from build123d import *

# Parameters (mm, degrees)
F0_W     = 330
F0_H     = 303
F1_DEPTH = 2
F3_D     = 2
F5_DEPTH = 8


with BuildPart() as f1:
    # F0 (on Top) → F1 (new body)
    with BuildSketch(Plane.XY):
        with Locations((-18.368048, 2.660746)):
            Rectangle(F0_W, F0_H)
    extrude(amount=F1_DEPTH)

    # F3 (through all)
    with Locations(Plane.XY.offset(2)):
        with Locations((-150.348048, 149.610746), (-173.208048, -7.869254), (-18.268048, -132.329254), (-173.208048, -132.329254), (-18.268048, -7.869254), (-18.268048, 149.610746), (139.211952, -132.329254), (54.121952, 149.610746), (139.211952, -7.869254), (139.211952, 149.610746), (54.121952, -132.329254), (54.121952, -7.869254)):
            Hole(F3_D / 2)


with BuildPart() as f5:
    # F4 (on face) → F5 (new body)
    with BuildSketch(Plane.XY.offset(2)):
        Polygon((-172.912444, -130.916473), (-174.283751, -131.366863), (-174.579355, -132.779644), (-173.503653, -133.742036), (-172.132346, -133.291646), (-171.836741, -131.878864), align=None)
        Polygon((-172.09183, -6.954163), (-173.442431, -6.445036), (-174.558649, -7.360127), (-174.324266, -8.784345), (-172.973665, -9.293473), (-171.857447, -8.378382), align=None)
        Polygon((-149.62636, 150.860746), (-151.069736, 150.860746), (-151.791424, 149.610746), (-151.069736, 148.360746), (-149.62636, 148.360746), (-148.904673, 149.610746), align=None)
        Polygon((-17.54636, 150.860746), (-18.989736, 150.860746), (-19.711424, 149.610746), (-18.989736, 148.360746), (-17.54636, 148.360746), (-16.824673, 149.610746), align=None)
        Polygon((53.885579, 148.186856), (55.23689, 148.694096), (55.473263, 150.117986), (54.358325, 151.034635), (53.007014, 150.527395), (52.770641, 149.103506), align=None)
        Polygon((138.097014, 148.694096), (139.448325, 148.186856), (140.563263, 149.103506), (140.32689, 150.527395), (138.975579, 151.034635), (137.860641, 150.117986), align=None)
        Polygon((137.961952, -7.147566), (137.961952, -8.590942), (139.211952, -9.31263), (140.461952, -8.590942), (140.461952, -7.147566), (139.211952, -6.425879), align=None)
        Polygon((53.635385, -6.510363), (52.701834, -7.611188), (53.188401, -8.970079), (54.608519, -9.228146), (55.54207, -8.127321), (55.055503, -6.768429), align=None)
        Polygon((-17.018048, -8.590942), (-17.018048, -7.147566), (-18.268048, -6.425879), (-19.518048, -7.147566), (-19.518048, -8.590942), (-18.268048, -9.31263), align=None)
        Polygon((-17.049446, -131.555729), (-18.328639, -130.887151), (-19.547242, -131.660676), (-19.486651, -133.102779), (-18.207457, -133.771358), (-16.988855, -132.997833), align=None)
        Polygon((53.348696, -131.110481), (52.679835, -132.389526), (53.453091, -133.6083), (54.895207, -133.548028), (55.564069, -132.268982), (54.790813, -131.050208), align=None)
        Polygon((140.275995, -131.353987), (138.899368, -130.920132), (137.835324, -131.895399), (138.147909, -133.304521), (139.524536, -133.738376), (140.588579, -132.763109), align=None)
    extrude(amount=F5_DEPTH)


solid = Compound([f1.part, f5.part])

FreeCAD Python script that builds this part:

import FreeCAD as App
import Part
import Sketcher
Q = App.Units.Quantity


def add_polygon(sketch, points):
    """Adds a closed chain of lines whose ends are joined by coincident constraints."""
    first, n = sketch.GeometryCount, len(points)
    for a, b in zip(points, points[1:] + points[:1]):
        sketch.addGeometry(Part.LineSegment(App.Vector(*a, 0), App.Vector(*b, 0)), False)
    for i in range(n):
        sketch.addConstraint(Sketcher.Constraint("Coincident", first + i, 2, first + (i + 1) % n, 1))

doc = App.newDocument("Part")
body = doc.addObject("PartDesign::Body", "Body")

sketch1 = body.newObject("Sketcher::SketchObject", "Sketch")
sketch1.AttachmentSupport = (doc.getObject("XY_Plane"), [""])
sketch1.MapMode = "FlatFace"
add_polygon(sketch1, [(-183.368048, 154.160746), (-183.368048, -148.839254), (146.631952, -148.839254), (146.631952, 154.160746)])
sketch1.addConstraint([
    Sketcher.Constraint("Vertical", 0),
    Sketcher.Constraint("Horizontal", 1),
    Sketcher.Constraint("Vertical", 2),
    Sketcher.Constraint("Horizontal", 3),
    Sketcher.Constraint("DistanceX", 1, 1, 1, 2, 330.0),
    Sketcher.Constraint("DistanceY", 0, 2, 0, 1, 303.0),
    Sketcher.Constraint("DistanceX", 0, 2, -1, 1, 183.368048),
    Sketcher.Constraint("DistanceY", 0, 2, -1, 1, 148.839254),
])
pad1 = body.newObject("PartDesign::Pad", "Pad")
pad1.Profile = sketch1
pad1.Length = 2

sketch2 = body.newObject("Sketcher::SketchObject", "Sketch001")
sketch2.AttachmentSupport = (doc.getObject("XY_Plane"), [""])
sketch2.MapMode = "FlatFace"
sketch2.AttachmentOffset = App.Placement(App.Vector(0, 0, 2), App.Rotation())
sketch2.addGeometry([
    Part.Circle(App.Vector(-150.348048, 149.610746, 0), App.Vector(0, 0, 1), 1),
    Part.Circle(App.Vector(-173.208048, -7.869254, 0), App.Vector(0, 0, 1), 1),
    Part.Circle(App.Vector(-18.268048, -132.329254, 0), App.Vector(0, 0, 1), 1),
    Part.Circle(App.Vector(-173.208048, -132.329254, 0), App.Vector(0, 0, 1), 1),
    Part.Circle(App.Vector(-18.268048, -7.869254, 0), App.Vector(0, 0, 1), 1),
    Part.Circle(App.Vector(-18.268048, 149.610746, 0), App.Vector(0, 0, 1), 1),
    Part.Circle(App.Vector(139.211952, -132.329254, 0), App.Vector(0, 0, 1), 1),
    Part.Circle(App.Vector(54.121952, 149.610746, 0), App.Vector(0, 0, 1), 1),
    Part.Circle(App.Vector(139.211952, -7.869254, 0), App.Vector(0, 0, 1), 1),
    Part.Circle(App.Vector(139.211952, 149.610746, 0), App.Vector(0, 0, 1), 1),
    Part.Circle(App.Vector(54.121952, -132.329254, 0), App.Vector(0, 0, 1), 1),
    Part.Circle(App.Vector(54.121952, -7.869254, 0), App.Vector(0, 0, 1), 1),
], False)
sketch2.addConstraint([
    Sketcher.Constraint("Equal", 0, 1),
    Sketcher.Constraint("Equal", 1, 2),
    Sketcher.Constraint("Equal", 2, 3),
    Sketcher.Constraint("Equal", 3, 4),
    Sketcher.Constraint("Equal", 4, 5),
    Sketcher.Constraint("Equal", 5, 6),
    Sketcher.Constraint("Equal", 6, 7),
    Sketcher.Constraint("Equal", 7, 8),
    Sketcher.Constraint("Equal", 8, 9),
    Sketcher.Constraint("Equal", 9, 10),
    Sketcher.Constraint("Equal", 10, 11),
    Sketcher.Constraint("Horizontal", 2, 3, 3, 3),
    Sketcher.Constraint("Horizontal", 1, 3, 4, 3),
    Sketcher.Constraint("Horizontal", 0, 3, 5, 3),
    Sketcher.Constraint("Horizontal", 3, 3, 6, 3),
    Sketcher.Constraint("Horizontal", 5, 3, 7, 3),
    Sketcher.Constraint("Horizontal", 4, 3, 8, 3),
    Sketcher.Constraint("Horizontal", 7, 3, 9, 3),
    Sketcher.Constraint("Horizontal", 6, 3, 10, 3),
    Sketcher.Constraint("Horizontal", 8, 3, 11, 3),
    Sketcher.Constraint("Vertical", 1, 3, 3, 3),
    Sketcher.Constraint("Vertical", 2, 3, 4, 3),
    Sketcher.Constraint("Vertical", 4, 3, 5, 3),
    Sketcher.Constraint("Vertical", 6, 3, 8, 3),
    Sketcher.Constraint("Vertical", 8, 3, 9, 3),
    Sketcher.Constraint("Vertical", 7, 3, 10, 3),
    Sketcher.Constraint("Vertical", 10, 3, 11, 3),
    Sketcher.Constraint("Diameter", 0, 2.0),
    Sketcher.Constraint("DistanceX", 1, 3, 0, 3, 22.86),
    Sketcher.Constraint("DistanceY", 1, 3, 0, 3, 157.48),
    Sketcher.Constraint("DistanceX", 1, 3, 2, 3, 154.94),
    Sketcher.Constraint("DistanceY", 2, 3, 1, 3, 124.46),
    Sketcher.Constraint("DistanceX", 2, 3, 6, 3, 157.48),
    Sketcher.Constraint("DistanceX", 5, 3, 7, 3, 72.39),
    Sketcher.Constraint("DistanceX", 0, 3, -1, 1, 150.348048),
    Sketcher.Constraint("DistanceY", -1, 1, 0, 3, 149.610746),
])
doc.recompute()
hole = body.newObject("PartDesign::Hole", "Hole")
hole.Profile = sketch2
hole.ThreadType = "None"
hole.Diameter = 2
hole.DepthType = "ThroughAll"
body2 = doc.addObject("PartDesign::Body", "Body001")
body2.AllowCompound = True

sketch3 = body2.newObject("Sketcher::SketchObject", "Sketch002")
sketch3.AttachmentSupport = (doc.getObject("XY_Plane001"), [""])
sketch3.MapMode = "FlatFace"
sketch3.AttachmentOffset = App.Placement(App.Vector(0, 0, 2), App.Rotation())
add_polygon(sketch3, [(-172.912444, -130.916473), (-174.283751, -131.366863), (-174.579355, -132.779644), (-173.503653, -133.742036), (-172.132346, -133.291646), (-171.836741, -131.878864)])
add_polygon(sketch3, [(-172.09183, -6.954163), (-173.442431, -6.445036), (-174.558649, -7.360127), (-174.324266, -8.784345), (-172.973665, -9.293473), (-171.857447, -8.378382)])
add_polygon(sketch3, [(-149.62636, 150.860746), (-151.069736, 150.860746), (-151.791424, 149.610746), (-151.069736, 148.360746), (-149.62636, 148.360746), (-148.904673, 149.610746)])
add_polygon(sketch3, [(-17.54636, 150.860746), (-18.989736, 150.860746), (-19.711424, 149.610746), (-18.989736, 148.360746), (-17.54636, 148.360746), (-16.824673, 149.610746)])
add_polygon(sketch3, [(53.885579, 148.186856), (55.23689, 148.694096), (55.473263, 150.117986), (54.358325, 151.034635), (53.007014, 150.527395), (52.770641, 149.103506)])
add_polygon(sketch3, [(138.097014, 148.694096), (139.448325, 148.186856), (140.563263, 149.103506), (140.32689, 150.527395), (138.975579, 151.034635), (137.860641, 150.117986)])
add_polygon(sketch3, [(137.961952, -7.147566), (137.961952, -8.590942), (139.211952, -9.31263), (140.461952, -8.590942), (140.461952, -7.147566), (139.211952, -6.425879)])
add_polygon(sketch3, [(53.635385, -6.510363), (52.701834, -7.611188), (53.188401, -8.970079), (54.608519, -9.228146), (55.54207, -8.127321), (55.055503, -6.768429)])
add_polygon(sketch3, [(-17.018048, -8.590942), (-17.018048, -7.147566), (-18.268048, -6.425879), (-19.518048, -7.147566), (-19.518048, -8.590942), (-18.268048, -9.31263)])
add_polygon(sketch3, [(-17.049446, -131.555729), (-18.328639, -130.887151), (-19.547242, -131.660676), (-19.486651, -133.102779), (-18.207457, -133.771358), (-16.988855, -132.997833)])
add_polygon(sketch3, [(53.348696, -131.110481), (52.679835, -132.389526), (53.453091, -133.6083), (54.895207, -133.548028), (55.564069, -132.268982), (54.790813, -131.050208)])
add_polygon(sketch3, [(140.275995, -131.353987), (138.899368, -130.920132), (137.835324, -131.895399), (138.147909, -133.304521), (139.524536, -133.738376), (140.588579, -132.763109)])
sketch3.addConstraint([
    Sketcher.Constraint("Horizontal", 12),
    Sketcher.Constraint("Horizontal", 15),
    Sketcher.Constraint("Horizontal", 18),
    Sketcher.Constraint("Horizontal", 21),
    Sketcher.Constraint("Vertical", 36),
    Sketcher.Constraint("Vertical", 39),
    Sketcher.Constraint("Vertical", 48),
    Sketcher.Constraint("Vertical", 51),
    Sketcher.Constraint("Parallel", 0, 3),
    Sketcher.Constraint("Parallel", 1, 4),
    Sketcher.Constraint("Parallel", 2, 5),
    Sketcher.Constraint("Parallel", 6, 9),
    Sketcher.Constraint("Parallel", 7, 10),
    Sketcher.Constraint("Parallel", 8, 11),
    Sketcher.Constraint("Parallel", 13, 16),
    Sketcher.Constraint("Parallel", 14, 17),
    Sketcher.Constraint("Parallel", 16, 19),
    Sketcher.Constraint("Parallel", 17, 20),
    Sketcher.Constraint("Parallel", 19, 22),
    Sketcher.Constraint("Parallel", 20, 23),
    Sketcher.Constraint("Parallel", 24, 27),
    Sketcher.Constraint("Parallel", 25, 28),
    Sketcher.Constraint("Parallel", 26, 29),
    Sketcher.Constraint("Parallel", 30, 33),
    Sketcher.Constraint("Parallel", 31, 34),
    Sketcher.Constraint("Parallel", 32, 35),
    Sketcher.Constraint("Perpendicular", 22, 37),
    Sketcher.Constraint("Perpendicular", 23, 38),
    Sketcher.Constraint("Parallel", 37, 40),
    Sketcher.Constraint("Parallel", 38, 41),
    Sketcher.Constraint("Parallel", 42, 45),
    Sketcher.Constraint("Parallel", 43, 46),
    Sketcher.Constraint("Parallel", 44, 47),
    Sketcher.Constraint("Parallel", 40, 49),
    Sketcher.Constraint("Parallel", 41, 50),
    Sketcher.Constraint("Parallel", 49, 52),
    Sketcher.Constraint("Parallel", 50, 53),
    Sketcher.Constraint("Parallel", 54, 57),
    Sketcher.Constraint("Parallel", 55, 58),
    Sketcher.Constraint("Parallel", 56, 59),
    Sketcher.Constraint("Parallel", 60, 63),
    Sketcher.Constraint("Parallel", 61, 64),
    Sketcher.Constraint("Parallel", 62, 65),
    Sketcher.Constraint("Parallel", 66, 69),
    Sketcher.Constraint("Parallel", 67, 70),
    Sketcher.Constraint("Parallel", 68, 71),
    Sketcher.Constraint("Horizontal", 13, 2, 16, 2),
    Sketcher.Constraint("Horizontal", 17, 2, 18, 2),
    Sketcher.Constraint("Horizontal", 16, 2, 19, 2),
    Sketcher.Constraint("Horizontal", 15, 2, 20, 2),
    Sketcher.Constraint("Horizontal", 19, 2, 22, 2),
    Sketcher.Constraint("Horizontal", 29, 2, 30, 2),
    Sketcher.Constraint("Horizontal", 28, 2, 31, 2),
    Sketcher.Constraint("Horizontal", 27, 2, 32, 2),
    Sketcher.Constraint("Horizontal", 26, 2, 33, 2),
    Sketcher.Constraint("Horizontal", 25, 2, 34, 2),
    Sketcher.Constraint("Horizontal", 36, 2, 38, 2),
    Sketcher.Constraint("Horizontal", 39, 2, 41, 2),
    Sketcher.Constraint("Horizontal", 41, 2, 48, 2),
    Sketcher.Constraint("Horizontal", 40, 2, 49, 2),
    Sketcher.Constraint("Horizontal", 48, 2, 50, 2),
    Sketcher.Constraint("Horizontal", 38, 2, 51, 2),
    Sketcher.Constraint("Horizontal", 37, 2, 52, 2),
    Sketcher.Constraint("Vertical", 12, 2, 14, 2),
    Sketcher.Constraint("Vertical", 15, 2, 17, 2),
    Sketcher.Constraint("Equal", 15, 18),
    Sketcher.Constraint("Equal", 21, 36),
    Sketcher.Constraint("Equal", 0, 1),
    Sketcher.Constraint("Equal", 1, 2),
    Sketcher.Constraint("Equal", 2, 3),
    Sketcher.Constraint("Equal", 5, 6),
    Sketcher.Constraint("Equal", 6, 7),
    Sketcher.Constraint("Equal", 7, 8),
    Sketcher.Constraint("Equal", 8, 9),
    Sketcher.Constraint("Equal", 11, 13),
    Sketcher.Constraint("Equal", 23, 24),
    Sketcher.Constraint("Equal", 24, 25),
    Sketcher.Constraint("Equal", 25, 26),
    Sketcher.Constraint("Equal", 26, 27),
    Sketcher.Constraint("Equal", 29, 30),
    Sketcher.Constraint("Equal", 30, 31),
    Sketcher.Constraint("Equal", 31, 32),
    Sketcher.Constraint("Equal", 35, 37),
    Sketcher.Constraint("Equal", 41, 42),
    Sketcher.Constraint("Equal", 42, 43),
    Sketcher.Constraint("Equal", 43, 44),
    Sketcher.Constraint("Equal", 44, 45),
    Sketcher.Constraint("Equal", 53, 54),
    Sketcher.Constraint("Equal", 54, 55),
    Sketcher.Constraint("Equal", 55, 56),
    Sketcher.Constraint("Equal", 56, 57),
    Sketcher.Constraint("Equal", 59, 60),
    Sketcher.Constraint("Equal", 60, 61),
    Sketcher.Constraint("Equal", 61, 62),
    Sketcher.Constraint("Equal", 62, 63),
    Sketcher.Constraint("Equal", 65, 66),
    Sketcher.Constraint("Equal", 66, 67),
    Sketcher.Constraint("Equal", 67, 68),
    Sketcher.Constraint("Equal", 68, 69),
    Sketcher.Constraint("Angle", 13, Q("-120.000006 deg")),
    Sketcher.Constraint("DistanceX", -1, 1, 43, 2, 53.188401),
    Sketcher.Constraint("DistanceY", 61, 2, -1, 1, 133.6083),
    Sketcher.Constraint("DistanceY", 67, 2, -1, 1, 131.895399),
    Sketcher.Constraint("DistanceX", 12, 2, 12, 1, 1.443376),
    Sketcher.Constraint("DistanceX", 0, 2, -1, 1, 174.283751),
    Sketcher.Constraint("DistanceX", 4, 2, -1, 1, 171.836741),
    Sketcher.Constraint("DistanceX", 6, 2, -1, 1, 173.442431),
    Sketcher.Constraint("DistanceX", 7, 2, -1, 1, 174.558649),
    Sketcher.Constraint("DistanceX", 11, 2, -1, 1, 172.09183),
    Sketcher.Constraint("DistanceX", 15, 2, -1, 1, 149.62636),
    Sketcher.Constraint("DistanceX", 21, 2, -1, 1, 17.54636),
    Sketcher.Constraint("DistanceX", -1, 1, 24, 2, 55.23689),
    Sketcher.Constraint("DistanceX", -1, 1, 28, 2, 52.770641),
    Sketcher.Constraint("DistanceX", -1, 1, 29, 2, 53.885579),
    Sketcher.Constraint("DistanceX", -1, 1, 32, 2, 140.32689),
    Sketcher.Constraint("DistanceX", -1, 1, 36, 2, 137.961952),
    Sketcher.Constraint("DistanceX", -1, 1, 37, 2, 139.211952),
    Sketcher.Constraint("DistanceY", 37, 2, -1, 1, 9.31263),
    Sketcher.Constraint("DistanceY", 42, 2, -1, 1, 7.611188),
    Sketcher.Constraint("DistanceY", 43, 2, -1, 1, 8.970079),
    Sketcher.Constraint("DistanceX", -1, 1, 44, 2, 54.608519),
    Sketcher.Constraint("DistanceX", -1, 1, 45, 2, 55.54207),
    Sketcher.Constraint("DistanceX", 48, 2, -1, 1, 17.018048),
    Sketcher.Constraint("DistanceX", 54, 2, -1, 1, 18.328639),
    Sketcher.Constraint("DistanceY", 54, 2, -1, 1, 130.887151),
    Sketcher.Constraint("DistanceX", 56, 2, -1, 1, 19.486651),
    Sketcher.Constraint("DistanceY", 56, 2, -1, 1, 133.102779),
    Sketcher.Constraint("DistanceY", 57, 2, -1, 1, 133.771358),
    Sketcher.Constraint("DistanceX", -1, 1, 61, 2, 53.453091),
    Sketcher.Constraint("DistanceX", -1, 1, 63, 2, 55.564069),
    Sketcher.Constraint("DistanceY", 63, 2, -1, 1, 132.268982),
    Sketcher.Constraint("DistanceY", 64, 2, -1, 1, 131.050208),
    Sketcher.Constraint("DistanceX", -1, 1, 66, 2, 138.899368),
    Sketcher.Constraint("DistanceY", 66, 2, -1, 1, 130.920132),
    Sketcher.Constraint("DistanceX", -1, 1, 68, 2, 138.147909),
    Sketcher.Constraint("DistanceX", -1, 1, 70, 2, 140.588579),
    Sketcher.Constraint("DistanceY", 0, 2, -1, 1, 131.366863),
    Sketcher.Constraint("DistanceX", 1, 2, -1, 1, 174.579355),
    Sketcher.Constraint("DistanceX", 2, 2, -1, 1, 173.503653),
    Sketcher.Constraint("DistanceY", 6, 2, -1, 1, 6.445036),
    Sketcher.Constraint("DistanceX", 8, 2, -1, 1, 174.324266),
    Sketcher.Constraint("DistanceY", -1, 1, 12, 2, 150.860746),
    Sketcher.Constraint("DistanceY", -1, 1, 24, 2, 148.694096),
    Sketcher.Constraint("DistanceX", -1, 1, 25, 2, 55.473263),
])
pad2 = body2.newObject("PartDesign::Pad", "Pad001")
pad2.Profile = sketch3
pad2.Length = 8

doc.recompute()
